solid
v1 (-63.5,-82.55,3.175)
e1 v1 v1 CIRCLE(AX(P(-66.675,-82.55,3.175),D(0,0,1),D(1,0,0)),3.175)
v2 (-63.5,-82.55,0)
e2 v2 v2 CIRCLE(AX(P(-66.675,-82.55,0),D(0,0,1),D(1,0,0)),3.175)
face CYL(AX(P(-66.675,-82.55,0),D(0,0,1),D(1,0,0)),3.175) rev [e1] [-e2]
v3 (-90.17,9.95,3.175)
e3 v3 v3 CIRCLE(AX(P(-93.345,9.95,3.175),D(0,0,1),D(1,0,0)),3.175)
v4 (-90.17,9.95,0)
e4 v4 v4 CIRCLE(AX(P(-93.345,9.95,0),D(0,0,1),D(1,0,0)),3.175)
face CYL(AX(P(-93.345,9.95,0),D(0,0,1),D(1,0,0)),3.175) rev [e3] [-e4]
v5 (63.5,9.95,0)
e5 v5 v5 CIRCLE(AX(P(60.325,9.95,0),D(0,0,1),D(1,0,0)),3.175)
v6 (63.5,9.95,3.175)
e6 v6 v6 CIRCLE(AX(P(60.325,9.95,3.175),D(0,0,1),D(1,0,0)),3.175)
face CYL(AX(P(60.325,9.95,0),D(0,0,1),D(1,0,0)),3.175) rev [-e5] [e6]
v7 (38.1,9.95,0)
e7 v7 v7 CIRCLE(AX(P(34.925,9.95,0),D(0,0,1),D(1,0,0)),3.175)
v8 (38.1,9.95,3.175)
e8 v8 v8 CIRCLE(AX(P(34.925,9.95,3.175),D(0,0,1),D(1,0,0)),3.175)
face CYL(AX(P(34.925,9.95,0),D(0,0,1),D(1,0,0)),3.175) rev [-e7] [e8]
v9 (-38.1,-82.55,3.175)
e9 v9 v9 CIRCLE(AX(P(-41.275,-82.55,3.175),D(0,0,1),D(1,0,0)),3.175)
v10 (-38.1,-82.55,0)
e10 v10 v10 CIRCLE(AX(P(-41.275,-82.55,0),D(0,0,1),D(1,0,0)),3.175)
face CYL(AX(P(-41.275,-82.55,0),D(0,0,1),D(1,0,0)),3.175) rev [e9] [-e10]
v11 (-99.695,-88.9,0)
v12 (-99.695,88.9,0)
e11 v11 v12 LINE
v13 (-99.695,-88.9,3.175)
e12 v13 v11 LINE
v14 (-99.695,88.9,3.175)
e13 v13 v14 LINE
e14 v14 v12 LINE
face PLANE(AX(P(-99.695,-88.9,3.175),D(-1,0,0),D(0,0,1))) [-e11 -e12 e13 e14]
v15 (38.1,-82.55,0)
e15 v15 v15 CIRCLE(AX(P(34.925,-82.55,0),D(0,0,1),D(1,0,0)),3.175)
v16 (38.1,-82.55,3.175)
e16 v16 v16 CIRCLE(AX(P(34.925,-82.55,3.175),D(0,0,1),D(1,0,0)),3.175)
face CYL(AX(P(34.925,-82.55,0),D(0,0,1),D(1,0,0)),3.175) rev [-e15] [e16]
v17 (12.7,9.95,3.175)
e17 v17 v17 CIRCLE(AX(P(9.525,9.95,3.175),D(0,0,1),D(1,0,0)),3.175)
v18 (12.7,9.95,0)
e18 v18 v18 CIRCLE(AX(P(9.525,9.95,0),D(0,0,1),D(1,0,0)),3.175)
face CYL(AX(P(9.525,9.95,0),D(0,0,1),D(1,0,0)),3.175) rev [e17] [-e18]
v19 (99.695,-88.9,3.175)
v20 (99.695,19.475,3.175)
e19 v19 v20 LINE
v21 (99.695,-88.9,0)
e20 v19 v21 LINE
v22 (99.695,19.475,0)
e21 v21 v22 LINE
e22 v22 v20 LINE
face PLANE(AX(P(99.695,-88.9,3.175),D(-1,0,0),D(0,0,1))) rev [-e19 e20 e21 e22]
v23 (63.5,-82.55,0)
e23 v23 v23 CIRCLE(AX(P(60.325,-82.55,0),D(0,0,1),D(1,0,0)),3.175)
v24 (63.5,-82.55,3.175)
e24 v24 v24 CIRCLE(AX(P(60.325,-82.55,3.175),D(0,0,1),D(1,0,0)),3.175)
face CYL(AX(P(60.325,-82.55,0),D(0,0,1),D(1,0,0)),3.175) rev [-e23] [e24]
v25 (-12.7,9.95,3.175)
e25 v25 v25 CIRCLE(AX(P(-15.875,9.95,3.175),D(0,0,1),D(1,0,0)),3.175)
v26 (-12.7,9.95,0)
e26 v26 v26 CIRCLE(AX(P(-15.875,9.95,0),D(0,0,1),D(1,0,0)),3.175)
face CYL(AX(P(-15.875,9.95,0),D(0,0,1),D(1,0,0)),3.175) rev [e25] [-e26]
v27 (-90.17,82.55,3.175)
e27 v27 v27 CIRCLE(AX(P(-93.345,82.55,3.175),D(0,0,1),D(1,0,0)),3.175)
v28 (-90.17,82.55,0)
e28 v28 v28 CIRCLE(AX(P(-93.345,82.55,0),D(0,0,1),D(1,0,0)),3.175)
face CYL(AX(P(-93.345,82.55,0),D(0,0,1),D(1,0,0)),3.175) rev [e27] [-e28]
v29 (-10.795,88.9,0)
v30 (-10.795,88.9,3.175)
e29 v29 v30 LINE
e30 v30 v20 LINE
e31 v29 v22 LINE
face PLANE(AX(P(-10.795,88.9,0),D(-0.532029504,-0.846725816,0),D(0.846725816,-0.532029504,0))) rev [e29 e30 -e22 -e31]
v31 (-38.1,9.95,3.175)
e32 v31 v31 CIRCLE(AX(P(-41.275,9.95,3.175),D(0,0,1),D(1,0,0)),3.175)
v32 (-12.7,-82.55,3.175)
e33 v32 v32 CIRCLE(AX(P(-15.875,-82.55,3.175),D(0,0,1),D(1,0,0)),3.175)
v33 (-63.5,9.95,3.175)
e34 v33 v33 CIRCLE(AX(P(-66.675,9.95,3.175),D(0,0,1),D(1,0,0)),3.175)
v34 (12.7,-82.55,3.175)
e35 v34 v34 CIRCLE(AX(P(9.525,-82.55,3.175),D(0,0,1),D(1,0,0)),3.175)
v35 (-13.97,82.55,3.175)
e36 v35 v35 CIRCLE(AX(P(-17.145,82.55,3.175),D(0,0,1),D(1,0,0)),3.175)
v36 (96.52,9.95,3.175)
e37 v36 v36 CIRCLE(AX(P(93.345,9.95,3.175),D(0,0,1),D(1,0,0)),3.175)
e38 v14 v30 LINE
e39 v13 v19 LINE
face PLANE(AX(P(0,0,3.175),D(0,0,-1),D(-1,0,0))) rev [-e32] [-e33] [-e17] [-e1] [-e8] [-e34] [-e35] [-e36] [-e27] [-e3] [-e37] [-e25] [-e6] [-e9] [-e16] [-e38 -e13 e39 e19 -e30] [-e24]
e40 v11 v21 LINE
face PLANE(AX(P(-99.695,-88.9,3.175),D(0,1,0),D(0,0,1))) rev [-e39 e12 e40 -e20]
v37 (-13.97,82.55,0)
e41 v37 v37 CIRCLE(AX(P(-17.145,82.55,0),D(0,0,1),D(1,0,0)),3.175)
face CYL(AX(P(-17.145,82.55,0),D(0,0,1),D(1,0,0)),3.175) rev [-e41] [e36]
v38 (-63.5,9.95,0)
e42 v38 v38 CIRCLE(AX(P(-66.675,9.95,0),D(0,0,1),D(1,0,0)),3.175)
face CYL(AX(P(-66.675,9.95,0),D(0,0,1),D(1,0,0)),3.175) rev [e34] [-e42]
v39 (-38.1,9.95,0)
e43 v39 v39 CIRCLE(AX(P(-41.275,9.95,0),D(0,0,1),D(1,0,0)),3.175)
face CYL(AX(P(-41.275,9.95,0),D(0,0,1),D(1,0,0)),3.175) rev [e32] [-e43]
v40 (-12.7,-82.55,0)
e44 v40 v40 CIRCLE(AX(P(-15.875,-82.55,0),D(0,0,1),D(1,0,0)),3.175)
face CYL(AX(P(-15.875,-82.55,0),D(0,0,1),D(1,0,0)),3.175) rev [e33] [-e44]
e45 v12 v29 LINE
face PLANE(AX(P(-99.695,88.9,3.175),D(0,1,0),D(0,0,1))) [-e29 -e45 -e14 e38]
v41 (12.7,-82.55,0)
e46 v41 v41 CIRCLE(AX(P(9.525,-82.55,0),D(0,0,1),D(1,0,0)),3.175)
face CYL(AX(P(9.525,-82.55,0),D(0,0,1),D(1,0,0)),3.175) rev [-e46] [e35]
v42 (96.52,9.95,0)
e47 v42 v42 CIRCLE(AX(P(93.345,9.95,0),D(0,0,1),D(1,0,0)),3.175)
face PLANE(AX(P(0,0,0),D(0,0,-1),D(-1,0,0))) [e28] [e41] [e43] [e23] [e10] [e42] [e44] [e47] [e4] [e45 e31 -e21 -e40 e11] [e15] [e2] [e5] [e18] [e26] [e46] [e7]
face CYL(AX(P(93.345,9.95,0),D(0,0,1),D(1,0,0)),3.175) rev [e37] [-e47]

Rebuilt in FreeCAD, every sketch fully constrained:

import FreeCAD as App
import Part
import Sketcher
from FreeCAD import Vector
Q = App.Units.Quantity

doc = App.newDocument("Part")
params = doc.addObject("Spreadsheet::Sheet", "Params")
for row, (alias, value) in enumerate([
    ("sketch1_height", "7 in"),
    ("sketch1_width", "7.85 in"),
    ("pad1_length", "0.125 in"),
    ("sketch2_width", "4.35 in"),
    ("sketch3_diameter", "0.25 in"),
], start=1):
    params.set(f"A{row}", alias)
    params.set(f"B{row}", "=" + value)
    params.setAlias(f"B{row}", alias)

body = doc.addObject("PartDesign::Body", "Body")

# Sketch on XY plane
sketch1 = doc.addObject("Sketcher::SketchObject", "Sketch")
body.addObject(sketch1)
sketch1.AttachmentSupport = (doc.XY_Plane, [""])
sketch1.MapMode = "FlatFace"
sketch1.addGeometry(Part.LineSegment(Vector(-99.695, 88.9, 0), Vector(-99.695, -88.9, 0)), False)
sketch1.addGeometry(Part.LineSegment(Vector(-99.695, -88.9, 0), Vector(99.695, -88.9, 0)), False)
sketch1.addGeometry(Part.LineSegment(Vector(99.695, -88.9, 0), Vector(99.695, 88.9, 0)), False)
sketch1.addGeometry(Part.LineSegment(Vector(99.695, 88.9, 0), Vector(-99.695, 88.9, 0)), False)
sketch1.addConstraint(Sketcher.Constraint("Coincident", 0, 2, 1, 1))
sketch1.addConstraint(Sketcher.Constraint("Coincident", 1, 2, 2, 1))
sketch1.addConstraint(Sketcher.Constraint("Coincident", 2, 2, 3, 1))
sketch1.addConstraint(Sketcher.Constraint("Coincident", 3, 2, 0, 1))
sketch1.addConstraint(Sketcher.Constraint("Vertical", 0))
sketch1.addConstraint(Sketcher.Constraint("Horizontal", 1))
sketch1.addConstraint(Sketcher.Constraint("Vertical", 2))
sketch1.addConstraint(Sketcher.Constraint("Horizontal", 3))
sketch1.addConstraint(Sketcher.Constraint("Symmetric", 0, 2, 2, 2, -1, 1))
sketch1.addConstraint(Sketcher.Constraint("DistanceY", 0, 2, 0, 1, Q("7 in")))
sketch1.addConstraint(Sketcher.Constraint("DistanceX", 1, 1, 1, 2, Q("7.85 in")))
sketch1.setExpression("Constraints[9]", "Params.sketch1_height")
sketch1.setExpression("Constraints[10]", "Params.sketch1_width")
pad1 = doc.addObject("PartDesign::Pad", "Pad")
body.addObject(pad1)
pad1.Profile = sketch1
pad1.setExpression("Length", "Params.pad1_length")

# Sketch on XY plane
sketch2 = doc.addObject("Sketcher::SketchObject", "Sketch001")
body.addObject(sketch2)
sketch2.AttachmentSupport = (doc.XY_Plane, [""])
sketch2.MapMode = "FlatFace"
sketch2.AttachmentOffset = App.Placement(Vector(0, 0, 0.125 * 25.4), App.Rotation())
sketch2.addGeometry(Part.LineSegment(Vector(99.695, 19.475, 0), Vector(99.695, 88.9, 0)), False)
sketch2.addGeometry(Part.LineSegment(Vector(99.695, 88.9, 0), Vector(-10.795, 88.9, 0)), False)
sketch2.addGeometry(Part.LineSegment(Vector(-10.795, 88.9, 0), Vector(99.695, 19.475, 0)), False)
sketch2.addConstraint(Sketcher.Constraint("Coincident", 0, 2, 1, 1))
sketch2.addConstraint(Sketcher.Constraint("Coincident", 1, 2, 2, 1))
sketch2.addConstraint(Sketcher.Constraint("Coincident", 2, 2, 0, 1))
sketch2.addConstraint(Sketcher.Constraint("Vertical", 0))
sketch2.addConstraint(Sketcher.Constraint("Horizontal", 1))
sketch2.addConstraint(Sketcher.Constraint("DistanceX", 1, 2, 1, 1, Q("4.35 in")))
sketch2.addConstraint(Sketcher.Constraint("DistanceY", -1, 1, 0, 2, Q("3.5 in")))
sketch2.addConstraint(Sketcher.Constraint("DistanceX", -1, 1, 0, 2, Q("3.925 in")))
sketch2.addConstraint(Sketcher.Constraint("DistanceY", 0, 1, 0, 2, 69.425))
sketch2.setExpression("Constraints[5]", "Params.sketch2_width")
pocket1 = doc.addObject("PartDesign::Pocket", "Pocket")
body.addObject(pocket1)
pocket1.Profile = sketch2
pocket1.Type = "ThroughAll"

# Sketch on XY plane
sketch3 = doc.addObject("Sketcher::SketchObject", "Sketch002")
body.addObject(sketch3)
sketch3.AttachmentSupport = (doc.XY_Plane, [""])
sketch3.MapMode = "FlatFace"
sketch3.AttachmentOffset = App.Placement(Vector(0, 0, 0.125 * 25.4), App.Rotation())
sketch3.addGeometry(Part.Circle(Vector(-93.345, 82.55, 0), Vector(0, 0, 1), 3.175), False)
sketch3.addGeometry(Part.Circle(Vector(-93.345, 9.95, 0), Vector(0, 0, 1), 3.175), False)
sketch3.addGeometry(Part.Circle(Vector(93.345, 9.95, 0), Vector(0, 0, 1), 3.175), False)
sketch3.addGeometry(Part.Circle(Vector(-66.675, 9.95, 0), Vector(0, 0, 1), 3.175), False)
sketch3.addGeometry(Part.Circle(Vector(-41.275, 9.95, 0), Vector(0, 0, 1), 3.175), False)
sketch3.addGeometry(Part.Circle(Vector(-15.875, 9.95, 0), Vector(0, 0, 1), 3.175), False)
sketch3.addGeometry(Part.Circle(Vector(9.525, 9.95, 0), Vector(0, 0, 1), 3.175), False)
sketch3.addGeometry(Part.Circle(Vector(34.925, 9.95, 0), Vector(0, 0, 1), 3.175), False)
sketch3.addGeometry(Part.Circle(Vector(60.325, 9.95, 0), Vector(0, 0, 1), 3.175), False)
sketch3.addGeometry(Part.Circle(Vector(-17.145, 82.55, 0), Vector(0, 0, 1), 3.175), False)
sketch3.addGeometry(Part.Circle(Vector(-66.675, -82.55, 0), Vector(0, 0, 1), 3.175), False)
sketch3.addGeometry(Part.Circle(Vector(-41.275, -82.55, 0), Vector(0, 0, 1), 3.175), False)
sketch3.addGeometry(Part.Circle(Vector(-15.875, -82.55, 0), Vector(0, 0, 1), 3.175), False)
sketch3.addGeometry(Part.Circle(Vector(9.525, -82.55, 0), Vector(0, 0, 1), 3.175), False)
sketch3.addGeometry(Part.Circle(Vector(34.925, -82.55, 0), Vector(0, 0, 1), 3.175), False)
sketch3.addGeometry(Part.Circle(Vector(60.325, -82.55, 0), Vector(0, 0, 1), 3.175), False)
sketch3.addConstraint(Sketcher.Constraint("Equal", 0, 1))
sketch3.addConstraint(Sketcher.Constraint("Equal", 1, 2))
sketch3.addConstraint(Sketcher.Constraint("Equal", 2, 3))
sketch3.addConstraint(Sketcher.Constraint("Equal", 3, 4))
sketch3.addConstraint(Sketcher.Constraint("Equal", 4, 5))
sketch3.addConstraint(Sketcher.Constraint("Equal", 5, 6))
sketch3.addConstraint(Sketcher.Constraint("Equal", 6, 7))
sketch3.addConstraint(Sketcher.Constraint("Equal", 7, 8))
sketch3.addConstraint(Sketcher.Constraint("Equal", 8, 9))
sketch3.addConstraint(Sketcher.Constraint("Equal", 9, 10))
sketch3.addConstraint(Sketcher.Constraint("Equal", 10, 11))
sketch3.addConstraint(Sketcher.Constraint("Equal", 11, 12))
sketch3.addConstraint(Sketcher.Constraint("Equal", 12, 13))
sketch3.addConstraint(Sketcher.Constraint("Equal", 13, 14))
sketch3.addConstraint(Sketcher.Constraint("Equal", 14, 15))
sketch3.addConstraint(Sketcher.Constraint("Symmetric", 1, 3, 2, 3, -2))
sketch3.addConstraint(Sketcher.Constraint("Horizontal", 2, 3, 3, 3))
sketch3.addConstraint(Sketcher.Constraint("Horizontal", 3, 3, 4, 3))
sketch3.addConstraint(Sketcher.Constraint("Horizontal", 4, 3, 5, 3))
sketch3.addConstraint(Sketcher.Constraint("Horizontal", 5, 3, 6, 3))
sketch3.addConstraint(Sketcher.Constraint("Horizontal", 6, 3, 7, 3))
sketch3.addConstraint(Sketcher.Constraint("Horizontal", 7, 3, 8, 3))
sketch3.addConstraint(Sketcher.Constraint("Horizontal", 0, 3, 9, 3))
sketch3.addConstraint(Sketcher.Constraint("Horizontal", 10, 3, 11, 3))
sketch3.addConstraint(Sketcher.Constraint("Horizontal", 11, 3, 12, 3))
sketch3.addConstraint(Sketcher.Constraint("Horizontal", 12, 3, 13, 3))
sketch3.addConstraint(Sketcher.Constraint("Horizontal", 13, 3, 14, 3))
sketch3.addConstraint(Sketcher.Constraint("Horizontal", 14, 3, 15, 3))
sketch3.addConstraint(Sketcher.Constraint("Vertical", 0, 3, 1, 3))
sketch3.addConstraint(Sketcher.Constraint("Vertical", 3, 3, 10, 3))
sketch3.addConstraint(Sketcher.Constraint("Vertical", 4, 3, 11, 3))
sketch3.addConstraint(Sketcher.Constraint("Vertical", 5, 3, 12, 3))
sketch3.addConstraint(Sketcher.Constraint("Vertical", 6, 3, 13, 3))
sketch3.addConstraint(Sketcher.Constraint("Vertical", 7, 3, 14, 3))
sketch3.addConstraint(Sketcher.Constraint("Vertical", 8, 3, 15, 3))
sketch3.addConstraint(Sketcher.Constraint("Diameter", 0, Q("0.25 in")))
sketch3.addConstraint(Sketcher.Constraint("DistanceX", 3, 3, 4, 3, Q("1 in")))
sketch3.addConstraint(Sketcher.Constraint("DistanceX", 4, 3, 5, 3, Q("1 in")))
sketch3.addConstraint(Sketcher.Constraint("DistanceX", 5, 3, 6, 3, Q("1 in")))
sketch3.addConstraint(Sketcher.Constraint("DistanceX", 6, 3, 7, 3, Q("1 in")))
sketch3.addConstraint(Sketcher.Constraint("DistanceX", 7, 3, 8, 3, Q("1 in")))
sketch3.addConstraint(Sketcher.Constraint("DistanceX", 0, 3, 9, 3, Q("3 in")))
sketch3.addConstraint(Sketcher.Constraint("DistanceX", 3, 3, 2, 3, Q("6.3 in")))
sketch3.addConstraint(Sketcher.Constraint("DistanceY", -1, 1, 0, 3, Q("3.25 in")))
sketch3.addConstraint(Sketcher.Constraint("DistanceY", 10, 3, -1, 1, Q("3.25 in")))
sketch3.addConstraint(Sketcher.Constraint("DistanceX", 1, 3, 2, 3, Q("7.35 in")))
sketch3.addConstraint(Sketcher.Constraint("DistanceY", -1, 1, 1, 3, 9.95))
sketch3.setExpression("Constraints[35]", "Params.sketch3_diameter")
pocket2 = doc.addObject("PartDesign::Pocket", "Pocket001")
body.addObject(pocket2)
pocket2.Profile = sketch3
pocket2.Type = "ThroughAll"

doc.recompute()
